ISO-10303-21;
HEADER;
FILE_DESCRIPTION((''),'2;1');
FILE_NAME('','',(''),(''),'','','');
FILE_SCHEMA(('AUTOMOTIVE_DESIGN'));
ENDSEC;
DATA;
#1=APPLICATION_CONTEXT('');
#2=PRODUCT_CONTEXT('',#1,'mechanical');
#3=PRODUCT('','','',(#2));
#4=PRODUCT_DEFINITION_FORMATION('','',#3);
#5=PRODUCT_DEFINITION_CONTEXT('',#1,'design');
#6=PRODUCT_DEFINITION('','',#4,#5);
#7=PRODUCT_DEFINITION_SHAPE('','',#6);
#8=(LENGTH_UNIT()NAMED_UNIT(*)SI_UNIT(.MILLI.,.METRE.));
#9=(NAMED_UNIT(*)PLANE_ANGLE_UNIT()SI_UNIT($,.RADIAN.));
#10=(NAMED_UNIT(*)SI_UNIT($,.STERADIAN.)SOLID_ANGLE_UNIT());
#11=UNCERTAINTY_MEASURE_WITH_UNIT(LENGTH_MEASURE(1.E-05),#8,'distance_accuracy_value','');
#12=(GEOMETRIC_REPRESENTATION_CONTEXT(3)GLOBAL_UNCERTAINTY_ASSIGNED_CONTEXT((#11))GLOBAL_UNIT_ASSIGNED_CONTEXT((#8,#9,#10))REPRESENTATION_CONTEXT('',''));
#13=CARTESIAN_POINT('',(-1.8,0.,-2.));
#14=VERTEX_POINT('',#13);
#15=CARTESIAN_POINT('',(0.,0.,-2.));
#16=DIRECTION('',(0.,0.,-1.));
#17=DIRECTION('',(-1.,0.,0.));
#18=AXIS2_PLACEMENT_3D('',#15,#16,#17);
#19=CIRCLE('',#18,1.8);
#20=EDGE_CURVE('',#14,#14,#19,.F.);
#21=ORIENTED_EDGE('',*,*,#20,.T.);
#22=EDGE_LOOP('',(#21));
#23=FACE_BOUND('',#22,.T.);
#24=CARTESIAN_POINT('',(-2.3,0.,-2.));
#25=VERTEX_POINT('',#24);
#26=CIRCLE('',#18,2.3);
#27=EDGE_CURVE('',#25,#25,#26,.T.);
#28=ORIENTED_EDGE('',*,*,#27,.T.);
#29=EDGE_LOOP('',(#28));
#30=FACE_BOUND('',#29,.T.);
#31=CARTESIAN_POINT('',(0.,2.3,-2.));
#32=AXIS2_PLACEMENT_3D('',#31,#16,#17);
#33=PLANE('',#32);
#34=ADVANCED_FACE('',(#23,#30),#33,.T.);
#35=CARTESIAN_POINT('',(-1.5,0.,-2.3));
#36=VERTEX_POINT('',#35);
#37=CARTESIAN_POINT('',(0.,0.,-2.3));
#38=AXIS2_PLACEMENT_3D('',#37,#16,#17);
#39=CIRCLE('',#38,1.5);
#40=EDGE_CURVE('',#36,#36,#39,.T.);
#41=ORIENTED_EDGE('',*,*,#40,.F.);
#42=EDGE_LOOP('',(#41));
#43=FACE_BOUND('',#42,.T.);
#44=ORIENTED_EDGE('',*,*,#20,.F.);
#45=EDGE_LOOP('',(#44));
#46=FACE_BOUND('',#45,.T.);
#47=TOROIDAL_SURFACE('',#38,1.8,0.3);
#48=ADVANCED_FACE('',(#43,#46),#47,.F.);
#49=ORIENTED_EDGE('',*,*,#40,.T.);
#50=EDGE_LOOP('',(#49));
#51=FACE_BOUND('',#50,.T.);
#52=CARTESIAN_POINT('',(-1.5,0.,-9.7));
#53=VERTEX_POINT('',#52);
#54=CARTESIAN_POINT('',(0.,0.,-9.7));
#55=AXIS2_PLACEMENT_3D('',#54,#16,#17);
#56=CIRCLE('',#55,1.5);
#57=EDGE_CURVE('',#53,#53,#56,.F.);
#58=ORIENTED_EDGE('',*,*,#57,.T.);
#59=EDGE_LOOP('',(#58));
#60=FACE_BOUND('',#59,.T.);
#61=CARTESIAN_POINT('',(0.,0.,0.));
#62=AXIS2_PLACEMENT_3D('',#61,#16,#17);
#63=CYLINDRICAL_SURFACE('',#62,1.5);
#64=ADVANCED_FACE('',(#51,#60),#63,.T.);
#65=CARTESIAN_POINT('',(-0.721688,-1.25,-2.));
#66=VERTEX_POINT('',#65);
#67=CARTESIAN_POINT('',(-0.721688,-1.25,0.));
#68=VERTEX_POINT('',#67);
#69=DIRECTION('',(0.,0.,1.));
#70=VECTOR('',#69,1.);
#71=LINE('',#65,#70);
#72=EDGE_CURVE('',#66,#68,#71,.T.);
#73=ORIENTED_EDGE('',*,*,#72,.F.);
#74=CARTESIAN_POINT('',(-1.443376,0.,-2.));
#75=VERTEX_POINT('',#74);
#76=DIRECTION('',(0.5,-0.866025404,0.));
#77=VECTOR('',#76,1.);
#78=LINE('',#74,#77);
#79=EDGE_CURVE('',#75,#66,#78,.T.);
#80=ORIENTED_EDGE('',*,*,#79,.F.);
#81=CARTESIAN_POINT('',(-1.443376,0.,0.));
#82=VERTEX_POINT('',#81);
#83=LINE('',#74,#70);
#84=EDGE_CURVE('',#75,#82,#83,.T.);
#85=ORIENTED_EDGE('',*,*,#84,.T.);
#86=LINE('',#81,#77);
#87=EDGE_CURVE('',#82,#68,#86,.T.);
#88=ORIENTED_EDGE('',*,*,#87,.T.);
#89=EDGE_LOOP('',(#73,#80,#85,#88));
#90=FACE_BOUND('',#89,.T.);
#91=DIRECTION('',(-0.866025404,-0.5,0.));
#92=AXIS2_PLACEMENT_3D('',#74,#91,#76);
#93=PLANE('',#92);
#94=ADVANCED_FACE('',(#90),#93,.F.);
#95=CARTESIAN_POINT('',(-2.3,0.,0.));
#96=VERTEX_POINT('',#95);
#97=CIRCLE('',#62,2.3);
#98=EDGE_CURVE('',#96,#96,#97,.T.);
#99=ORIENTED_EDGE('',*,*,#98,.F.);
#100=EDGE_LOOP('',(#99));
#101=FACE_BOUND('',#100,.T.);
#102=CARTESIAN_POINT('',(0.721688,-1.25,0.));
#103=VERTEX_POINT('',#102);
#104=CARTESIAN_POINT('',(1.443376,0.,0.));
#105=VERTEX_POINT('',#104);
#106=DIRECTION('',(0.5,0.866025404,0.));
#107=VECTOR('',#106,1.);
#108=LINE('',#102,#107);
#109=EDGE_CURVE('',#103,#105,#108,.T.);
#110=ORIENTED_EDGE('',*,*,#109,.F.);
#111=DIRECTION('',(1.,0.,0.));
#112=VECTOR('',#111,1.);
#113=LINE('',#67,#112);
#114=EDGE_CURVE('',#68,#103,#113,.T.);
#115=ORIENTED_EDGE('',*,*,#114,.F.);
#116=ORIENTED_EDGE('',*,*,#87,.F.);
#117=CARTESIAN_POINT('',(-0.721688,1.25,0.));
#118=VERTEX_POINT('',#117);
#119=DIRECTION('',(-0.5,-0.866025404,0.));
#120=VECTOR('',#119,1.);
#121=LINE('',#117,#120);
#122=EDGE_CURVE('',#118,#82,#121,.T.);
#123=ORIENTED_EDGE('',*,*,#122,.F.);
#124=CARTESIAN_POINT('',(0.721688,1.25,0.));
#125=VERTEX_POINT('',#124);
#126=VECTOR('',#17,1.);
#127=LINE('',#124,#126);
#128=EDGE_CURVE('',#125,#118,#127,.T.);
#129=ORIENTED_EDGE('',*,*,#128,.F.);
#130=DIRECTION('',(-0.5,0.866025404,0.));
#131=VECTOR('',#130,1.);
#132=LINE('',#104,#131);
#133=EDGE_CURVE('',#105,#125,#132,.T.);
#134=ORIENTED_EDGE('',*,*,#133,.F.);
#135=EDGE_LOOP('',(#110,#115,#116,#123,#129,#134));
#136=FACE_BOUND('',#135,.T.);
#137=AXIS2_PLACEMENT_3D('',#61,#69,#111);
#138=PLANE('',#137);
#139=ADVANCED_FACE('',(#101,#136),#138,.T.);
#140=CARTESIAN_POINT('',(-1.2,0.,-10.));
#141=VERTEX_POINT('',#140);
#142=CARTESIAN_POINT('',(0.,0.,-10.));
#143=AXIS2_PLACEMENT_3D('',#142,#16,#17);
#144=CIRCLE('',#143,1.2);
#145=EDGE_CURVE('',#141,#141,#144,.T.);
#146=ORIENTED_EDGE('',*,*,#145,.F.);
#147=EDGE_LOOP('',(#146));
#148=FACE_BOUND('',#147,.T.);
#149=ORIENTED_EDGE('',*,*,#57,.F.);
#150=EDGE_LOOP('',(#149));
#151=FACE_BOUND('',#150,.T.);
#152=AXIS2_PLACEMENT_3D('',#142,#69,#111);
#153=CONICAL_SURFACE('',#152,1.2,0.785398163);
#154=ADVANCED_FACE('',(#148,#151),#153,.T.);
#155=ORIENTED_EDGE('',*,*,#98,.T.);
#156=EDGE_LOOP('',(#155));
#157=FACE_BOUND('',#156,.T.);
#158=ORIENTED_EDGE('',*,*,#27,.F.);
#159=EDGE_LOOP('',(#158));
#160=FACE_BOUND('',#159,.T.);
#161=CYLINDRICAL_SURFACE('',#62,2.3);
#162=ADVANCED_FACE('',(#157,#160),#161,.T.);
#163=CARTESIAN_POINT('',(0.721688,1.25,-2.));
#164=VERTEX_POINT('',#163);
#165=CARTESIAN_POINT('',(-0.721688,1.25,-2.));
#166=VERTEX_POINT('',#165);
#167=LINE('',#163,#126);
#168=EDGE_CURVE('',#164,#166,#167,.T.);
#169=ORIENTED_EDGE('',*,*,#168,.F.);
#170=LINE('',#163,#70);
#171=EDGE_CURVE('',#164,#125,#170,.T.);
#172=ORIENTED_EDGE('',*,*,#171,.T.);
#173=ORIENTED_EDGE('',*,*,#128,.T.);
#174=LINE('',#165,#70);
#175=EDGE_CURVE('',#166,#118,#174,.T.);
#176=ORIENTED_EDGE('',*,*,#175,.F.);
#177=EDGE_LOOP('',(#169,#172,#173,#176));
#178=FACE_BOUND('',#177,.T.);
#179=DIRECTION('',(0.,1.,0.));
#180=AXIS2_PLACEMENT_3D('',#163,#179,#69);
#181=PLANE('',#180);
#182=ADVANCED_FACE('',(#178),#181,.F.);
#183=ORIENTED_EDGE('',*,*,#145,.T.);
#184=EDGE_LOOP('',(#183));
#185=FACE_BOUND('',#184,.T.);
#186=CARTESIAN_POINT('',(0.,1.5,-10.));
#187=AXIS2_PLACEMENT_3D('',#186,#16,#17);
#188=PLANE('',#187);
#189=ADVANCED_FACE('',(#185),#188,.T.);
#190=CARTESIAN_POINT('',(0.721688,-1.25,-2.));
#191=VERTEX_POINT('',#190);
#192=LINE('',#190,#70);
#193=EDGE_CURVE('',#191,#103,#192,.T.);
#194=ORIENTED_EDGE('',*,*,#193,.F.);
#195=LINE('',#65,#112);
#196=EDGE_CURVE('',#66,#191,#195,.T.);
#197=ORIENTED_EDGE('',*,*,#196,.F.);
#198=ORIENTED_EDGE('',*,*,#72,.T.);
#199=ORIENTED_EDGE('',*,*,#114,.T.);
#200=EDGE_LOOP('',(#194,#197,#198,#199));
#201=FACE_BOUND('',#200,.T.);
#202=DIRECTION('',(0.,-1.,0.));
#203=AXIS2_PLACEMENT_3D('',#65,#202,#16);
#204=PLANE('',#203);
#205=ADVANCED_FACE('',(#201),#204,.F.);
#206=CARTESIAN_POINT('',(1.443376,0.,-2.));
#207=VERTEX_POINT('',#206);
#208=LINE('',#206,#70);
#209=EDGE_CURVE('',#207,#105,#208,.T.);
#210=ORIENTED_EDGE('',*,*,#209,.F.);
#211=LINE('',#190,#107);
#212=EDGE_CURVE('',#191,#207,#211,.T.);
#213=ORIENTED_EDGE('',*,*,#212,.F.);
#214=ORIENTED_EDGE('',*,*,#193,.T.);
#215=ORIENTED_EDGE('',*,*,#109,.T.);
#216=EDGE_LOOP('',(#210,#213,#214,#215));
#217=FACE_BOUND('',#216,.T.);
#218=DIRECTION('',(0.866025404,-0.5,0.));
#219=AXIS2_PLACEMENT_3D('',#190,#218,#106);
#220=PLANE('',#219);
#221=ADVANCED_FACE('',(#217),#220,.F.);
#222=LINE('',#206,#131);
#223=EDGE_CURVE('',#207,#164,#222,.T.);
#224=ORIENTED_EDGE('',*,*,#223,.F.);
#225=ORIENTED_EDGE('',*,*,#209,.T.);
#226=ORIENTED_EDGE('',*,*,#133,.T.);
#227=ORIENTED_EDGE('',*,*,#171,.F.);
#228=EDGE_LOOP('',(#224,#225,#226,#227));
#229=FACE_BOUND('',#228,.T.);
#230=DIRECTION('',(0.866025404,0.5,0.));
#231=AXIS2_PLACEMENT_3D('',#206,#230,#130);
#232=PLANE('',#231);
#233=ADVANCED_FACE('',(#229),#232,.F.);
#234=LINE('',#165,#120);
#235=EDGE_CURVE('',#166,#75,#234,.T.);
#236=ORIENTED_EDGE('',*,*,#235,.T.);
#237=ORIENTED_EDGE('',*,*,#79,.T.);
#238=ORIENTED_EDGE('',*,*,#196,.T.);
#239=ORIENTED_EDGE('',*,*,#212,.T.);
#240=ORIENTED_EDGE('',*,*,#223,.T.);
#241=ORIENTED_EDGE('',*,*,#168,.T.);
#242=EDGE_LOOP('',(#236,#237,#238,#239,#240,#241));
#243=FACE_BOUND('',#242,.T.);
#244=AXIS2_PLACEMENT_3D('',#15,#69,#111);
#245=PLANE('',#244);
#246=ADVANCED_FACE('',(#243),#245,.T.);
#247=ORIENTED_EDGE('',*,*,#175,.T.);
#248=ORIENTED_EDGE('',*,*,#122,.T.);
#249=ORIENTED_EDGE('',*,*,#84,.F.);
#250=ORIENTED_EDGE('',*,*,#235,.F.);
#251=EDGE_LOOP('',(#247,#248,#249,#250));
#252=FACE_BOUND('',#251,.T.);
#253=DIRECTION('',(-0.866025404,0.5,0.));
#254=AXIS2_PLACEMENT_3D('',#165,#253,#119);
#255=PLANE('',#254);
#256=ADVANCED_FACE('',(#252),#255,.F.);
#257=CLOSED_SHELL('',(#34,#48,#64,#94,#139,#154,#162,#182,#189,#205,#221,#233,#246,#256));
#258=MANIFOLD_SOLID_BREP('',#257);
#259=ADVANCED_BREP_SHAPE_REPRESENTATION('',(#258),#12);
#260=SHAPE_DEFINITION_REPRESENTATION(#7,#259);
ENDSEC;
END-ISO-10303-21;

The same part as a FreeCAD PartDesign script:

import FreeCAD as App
import Part
import Sketcher
from FreeCAD import Vector
Q = App.Units.Quantity


def edges_at(feature, points):
    """Names of the edges that pass closest to the given points."""
    edges = feature.Shape.Edges
    near = lambda p: min(range(len(edges)), key=lambda i: edges[i].distToShape(Part.Vertex(*p))[0])
    return sorted({f"Edge{near(p) + 1}" for p in points})

doc = App.newDocument("Part")
body = doc.addObject("PartDesign::Body", "Body")

sketch1 = body.newObject("Sketcher::SketchObject", "Sketch")
sketch1.AttachmentSupport = (doc.getObject("YZ_Plane"), [""])
sketch1.MapMode = "FlatFace"
sketch1.addGeometry([
    Part.LineSegment(Vector(2.3, 0, 0), Vector(0, 0, 0)),
    Part.LineSegment(Vector(0, 0, 0), Vector(0, -10, 0)),
    Part.LineSegment(Vector(0, -10, 0), Vector(1.5, -10, 0)),
    Part.LineSegment(Vector(1.5, -10, 0), Vector(1.5, -2, 0)),
    Part.LineSegment(Vector(1.5, -2, 0), Vector(2.3, -2, 0)),
    Part.LineSegment(Vector(2.3, -2, 0), Vector(2.3, 0, 0)),
], False)
sketch1.addConstraint([
    Sketcher.Constraint("Coincident", 0, 2, 1, 1),
    Sketcher.Constraint("Coincident", 1, 2, 2, 1),
    Sketcher.Constraint("Coincident", 2, 2, 3, 1),
    Sketcher.Constraint("Coincident", 3, 2, 4, 1),
    Sketcher.Constraint("Coincident", 4, 2, 5, 1),
    Sketcher.Constraint("Coincident", 5, 2, 0, 1),
    Sketcher.Constraint("Horizontal", 0),
    Sketcher.Constraint("Vertical", 1),
    Sketcher.Constraint("Horizontal", 2),
    Sketcher.Constraint("Vertical", 3),
    Sketcher.Constraint("Horizontal", 4),
    Sketcher.Constraint("Vertical", 5),
    Sketcher.Constraint("Coincident", 0, 2, -1, 1),
    Sketcher.Constraint("DistanceY", 1, 2, 1, 1, 10.0),
    Sketcher.Constraint("DistanceY", 3, 1, 3, 2, 8.0),
    Sketcher.Constraint("DistanceX", 0, 2, 0, 1, 2.3),
    Sketcher.Constraint("DistanceX", 2, 1, 2, 2, 1.5),
])
revolution = body.newObject("PartDesign::Revolution", "Revolution")
revolution.Profile = sketch1
revolution.ReferenceAxis = (sketch1, ["V_Axis"])
revolution.Angle = 360

sketch2 = body.newObject("Sketcher::SketchObject", "Sketch001")
sketch2.AttachmentSupport = (doc.getObject("XY_Plane"), [""])
sketch2.MapMode = "FlatFace"
sketch2.addGeometry([
    Part.LineSegment(Vector(1.4, 0, 0), Vector(0.7, 1.2, 0)),
    Part.LineSegment(Vector(0.7, 1.2, 0), Vector(-0.7, 1.2, 0)),
    Part.LineSegment(Vector(-0.7, 1.2, 0), Vector(-1.4, 0, 0)),
    Part.LineSegment(Vector(-1.4, 0, 0), Vector(-0.7, -1.2, 0)),
    Part.LineSegment(Vector(-0.7, -1.2, 0), Vector(0.7, -1.2, 0)),
    Part.LineSegment(Vector(0.7, -1.2, 0), Vector(1.4, 0, 0)),
], False)
sketch2.addConstraint([
    Sketcher.Constraint("Coincident", 0, 2, 1, 1),
    Sketcher.Constraint("Coincident", 1, 2, 2, 1),
    Sketcher.Constraint("Coincident", 2, 2, 3, 1),
    Sketcher.Constraint("Coincident", 3, 2, 4, 1),
    Sketcher.Constraint("Coincident", 4, 2, 5, 1),
    Sketcher.Constraint("Coincident", 5, 2, 0, 1),
    Sketcher.Constraint("Horizontal", 1),
    Sketcher.Constraint("Horizontal", 4),
    Sketcher.Constraint("Symmetric", 0, 2, 3, 2, -1, 1),
    Sketcher.Constraint("Symmetric", 2, 2, 5, 2, -1, 1),
    Sketcher.Constraint("PointOnObject", 2, 2, -1),
    Sketcher.Constraint("Parallel", 2, 5),
    Sketcher.Constraint("Vertical", 1, 2, 3, 2),
    Sketcher.Constraint("Angle", 0, Q("120 deg")),
    Sketcher.Constraint("DistanceY", 3, 2, 1, 2, 2.5),
    Sketcher.Constraint("DistanceX", 1, 2, 1, 1, 1.443376),
])
pocket1 = body.newObject("PartDesign::Pocket", "Pocket")
pocket1.Profile = sketch2
pocket1.Length = 2
doc.recompute()

fillet = body.newObject("PartDesign::Fillet", "Fillet")
fillet.Base = (pocket1, edges_at(pocket1, [(0, -1.5, -2)]))
fillet.Radius = 0.3
doc.recompute()

chamfer = body.newObject("PartDesign::Chamfer", "Chamfer")
chamfer.Base = (fillet, edges_at(fillet, [(0, -1.5, -10)]))
chamfer.Size = 0.3

doc.recompute()
